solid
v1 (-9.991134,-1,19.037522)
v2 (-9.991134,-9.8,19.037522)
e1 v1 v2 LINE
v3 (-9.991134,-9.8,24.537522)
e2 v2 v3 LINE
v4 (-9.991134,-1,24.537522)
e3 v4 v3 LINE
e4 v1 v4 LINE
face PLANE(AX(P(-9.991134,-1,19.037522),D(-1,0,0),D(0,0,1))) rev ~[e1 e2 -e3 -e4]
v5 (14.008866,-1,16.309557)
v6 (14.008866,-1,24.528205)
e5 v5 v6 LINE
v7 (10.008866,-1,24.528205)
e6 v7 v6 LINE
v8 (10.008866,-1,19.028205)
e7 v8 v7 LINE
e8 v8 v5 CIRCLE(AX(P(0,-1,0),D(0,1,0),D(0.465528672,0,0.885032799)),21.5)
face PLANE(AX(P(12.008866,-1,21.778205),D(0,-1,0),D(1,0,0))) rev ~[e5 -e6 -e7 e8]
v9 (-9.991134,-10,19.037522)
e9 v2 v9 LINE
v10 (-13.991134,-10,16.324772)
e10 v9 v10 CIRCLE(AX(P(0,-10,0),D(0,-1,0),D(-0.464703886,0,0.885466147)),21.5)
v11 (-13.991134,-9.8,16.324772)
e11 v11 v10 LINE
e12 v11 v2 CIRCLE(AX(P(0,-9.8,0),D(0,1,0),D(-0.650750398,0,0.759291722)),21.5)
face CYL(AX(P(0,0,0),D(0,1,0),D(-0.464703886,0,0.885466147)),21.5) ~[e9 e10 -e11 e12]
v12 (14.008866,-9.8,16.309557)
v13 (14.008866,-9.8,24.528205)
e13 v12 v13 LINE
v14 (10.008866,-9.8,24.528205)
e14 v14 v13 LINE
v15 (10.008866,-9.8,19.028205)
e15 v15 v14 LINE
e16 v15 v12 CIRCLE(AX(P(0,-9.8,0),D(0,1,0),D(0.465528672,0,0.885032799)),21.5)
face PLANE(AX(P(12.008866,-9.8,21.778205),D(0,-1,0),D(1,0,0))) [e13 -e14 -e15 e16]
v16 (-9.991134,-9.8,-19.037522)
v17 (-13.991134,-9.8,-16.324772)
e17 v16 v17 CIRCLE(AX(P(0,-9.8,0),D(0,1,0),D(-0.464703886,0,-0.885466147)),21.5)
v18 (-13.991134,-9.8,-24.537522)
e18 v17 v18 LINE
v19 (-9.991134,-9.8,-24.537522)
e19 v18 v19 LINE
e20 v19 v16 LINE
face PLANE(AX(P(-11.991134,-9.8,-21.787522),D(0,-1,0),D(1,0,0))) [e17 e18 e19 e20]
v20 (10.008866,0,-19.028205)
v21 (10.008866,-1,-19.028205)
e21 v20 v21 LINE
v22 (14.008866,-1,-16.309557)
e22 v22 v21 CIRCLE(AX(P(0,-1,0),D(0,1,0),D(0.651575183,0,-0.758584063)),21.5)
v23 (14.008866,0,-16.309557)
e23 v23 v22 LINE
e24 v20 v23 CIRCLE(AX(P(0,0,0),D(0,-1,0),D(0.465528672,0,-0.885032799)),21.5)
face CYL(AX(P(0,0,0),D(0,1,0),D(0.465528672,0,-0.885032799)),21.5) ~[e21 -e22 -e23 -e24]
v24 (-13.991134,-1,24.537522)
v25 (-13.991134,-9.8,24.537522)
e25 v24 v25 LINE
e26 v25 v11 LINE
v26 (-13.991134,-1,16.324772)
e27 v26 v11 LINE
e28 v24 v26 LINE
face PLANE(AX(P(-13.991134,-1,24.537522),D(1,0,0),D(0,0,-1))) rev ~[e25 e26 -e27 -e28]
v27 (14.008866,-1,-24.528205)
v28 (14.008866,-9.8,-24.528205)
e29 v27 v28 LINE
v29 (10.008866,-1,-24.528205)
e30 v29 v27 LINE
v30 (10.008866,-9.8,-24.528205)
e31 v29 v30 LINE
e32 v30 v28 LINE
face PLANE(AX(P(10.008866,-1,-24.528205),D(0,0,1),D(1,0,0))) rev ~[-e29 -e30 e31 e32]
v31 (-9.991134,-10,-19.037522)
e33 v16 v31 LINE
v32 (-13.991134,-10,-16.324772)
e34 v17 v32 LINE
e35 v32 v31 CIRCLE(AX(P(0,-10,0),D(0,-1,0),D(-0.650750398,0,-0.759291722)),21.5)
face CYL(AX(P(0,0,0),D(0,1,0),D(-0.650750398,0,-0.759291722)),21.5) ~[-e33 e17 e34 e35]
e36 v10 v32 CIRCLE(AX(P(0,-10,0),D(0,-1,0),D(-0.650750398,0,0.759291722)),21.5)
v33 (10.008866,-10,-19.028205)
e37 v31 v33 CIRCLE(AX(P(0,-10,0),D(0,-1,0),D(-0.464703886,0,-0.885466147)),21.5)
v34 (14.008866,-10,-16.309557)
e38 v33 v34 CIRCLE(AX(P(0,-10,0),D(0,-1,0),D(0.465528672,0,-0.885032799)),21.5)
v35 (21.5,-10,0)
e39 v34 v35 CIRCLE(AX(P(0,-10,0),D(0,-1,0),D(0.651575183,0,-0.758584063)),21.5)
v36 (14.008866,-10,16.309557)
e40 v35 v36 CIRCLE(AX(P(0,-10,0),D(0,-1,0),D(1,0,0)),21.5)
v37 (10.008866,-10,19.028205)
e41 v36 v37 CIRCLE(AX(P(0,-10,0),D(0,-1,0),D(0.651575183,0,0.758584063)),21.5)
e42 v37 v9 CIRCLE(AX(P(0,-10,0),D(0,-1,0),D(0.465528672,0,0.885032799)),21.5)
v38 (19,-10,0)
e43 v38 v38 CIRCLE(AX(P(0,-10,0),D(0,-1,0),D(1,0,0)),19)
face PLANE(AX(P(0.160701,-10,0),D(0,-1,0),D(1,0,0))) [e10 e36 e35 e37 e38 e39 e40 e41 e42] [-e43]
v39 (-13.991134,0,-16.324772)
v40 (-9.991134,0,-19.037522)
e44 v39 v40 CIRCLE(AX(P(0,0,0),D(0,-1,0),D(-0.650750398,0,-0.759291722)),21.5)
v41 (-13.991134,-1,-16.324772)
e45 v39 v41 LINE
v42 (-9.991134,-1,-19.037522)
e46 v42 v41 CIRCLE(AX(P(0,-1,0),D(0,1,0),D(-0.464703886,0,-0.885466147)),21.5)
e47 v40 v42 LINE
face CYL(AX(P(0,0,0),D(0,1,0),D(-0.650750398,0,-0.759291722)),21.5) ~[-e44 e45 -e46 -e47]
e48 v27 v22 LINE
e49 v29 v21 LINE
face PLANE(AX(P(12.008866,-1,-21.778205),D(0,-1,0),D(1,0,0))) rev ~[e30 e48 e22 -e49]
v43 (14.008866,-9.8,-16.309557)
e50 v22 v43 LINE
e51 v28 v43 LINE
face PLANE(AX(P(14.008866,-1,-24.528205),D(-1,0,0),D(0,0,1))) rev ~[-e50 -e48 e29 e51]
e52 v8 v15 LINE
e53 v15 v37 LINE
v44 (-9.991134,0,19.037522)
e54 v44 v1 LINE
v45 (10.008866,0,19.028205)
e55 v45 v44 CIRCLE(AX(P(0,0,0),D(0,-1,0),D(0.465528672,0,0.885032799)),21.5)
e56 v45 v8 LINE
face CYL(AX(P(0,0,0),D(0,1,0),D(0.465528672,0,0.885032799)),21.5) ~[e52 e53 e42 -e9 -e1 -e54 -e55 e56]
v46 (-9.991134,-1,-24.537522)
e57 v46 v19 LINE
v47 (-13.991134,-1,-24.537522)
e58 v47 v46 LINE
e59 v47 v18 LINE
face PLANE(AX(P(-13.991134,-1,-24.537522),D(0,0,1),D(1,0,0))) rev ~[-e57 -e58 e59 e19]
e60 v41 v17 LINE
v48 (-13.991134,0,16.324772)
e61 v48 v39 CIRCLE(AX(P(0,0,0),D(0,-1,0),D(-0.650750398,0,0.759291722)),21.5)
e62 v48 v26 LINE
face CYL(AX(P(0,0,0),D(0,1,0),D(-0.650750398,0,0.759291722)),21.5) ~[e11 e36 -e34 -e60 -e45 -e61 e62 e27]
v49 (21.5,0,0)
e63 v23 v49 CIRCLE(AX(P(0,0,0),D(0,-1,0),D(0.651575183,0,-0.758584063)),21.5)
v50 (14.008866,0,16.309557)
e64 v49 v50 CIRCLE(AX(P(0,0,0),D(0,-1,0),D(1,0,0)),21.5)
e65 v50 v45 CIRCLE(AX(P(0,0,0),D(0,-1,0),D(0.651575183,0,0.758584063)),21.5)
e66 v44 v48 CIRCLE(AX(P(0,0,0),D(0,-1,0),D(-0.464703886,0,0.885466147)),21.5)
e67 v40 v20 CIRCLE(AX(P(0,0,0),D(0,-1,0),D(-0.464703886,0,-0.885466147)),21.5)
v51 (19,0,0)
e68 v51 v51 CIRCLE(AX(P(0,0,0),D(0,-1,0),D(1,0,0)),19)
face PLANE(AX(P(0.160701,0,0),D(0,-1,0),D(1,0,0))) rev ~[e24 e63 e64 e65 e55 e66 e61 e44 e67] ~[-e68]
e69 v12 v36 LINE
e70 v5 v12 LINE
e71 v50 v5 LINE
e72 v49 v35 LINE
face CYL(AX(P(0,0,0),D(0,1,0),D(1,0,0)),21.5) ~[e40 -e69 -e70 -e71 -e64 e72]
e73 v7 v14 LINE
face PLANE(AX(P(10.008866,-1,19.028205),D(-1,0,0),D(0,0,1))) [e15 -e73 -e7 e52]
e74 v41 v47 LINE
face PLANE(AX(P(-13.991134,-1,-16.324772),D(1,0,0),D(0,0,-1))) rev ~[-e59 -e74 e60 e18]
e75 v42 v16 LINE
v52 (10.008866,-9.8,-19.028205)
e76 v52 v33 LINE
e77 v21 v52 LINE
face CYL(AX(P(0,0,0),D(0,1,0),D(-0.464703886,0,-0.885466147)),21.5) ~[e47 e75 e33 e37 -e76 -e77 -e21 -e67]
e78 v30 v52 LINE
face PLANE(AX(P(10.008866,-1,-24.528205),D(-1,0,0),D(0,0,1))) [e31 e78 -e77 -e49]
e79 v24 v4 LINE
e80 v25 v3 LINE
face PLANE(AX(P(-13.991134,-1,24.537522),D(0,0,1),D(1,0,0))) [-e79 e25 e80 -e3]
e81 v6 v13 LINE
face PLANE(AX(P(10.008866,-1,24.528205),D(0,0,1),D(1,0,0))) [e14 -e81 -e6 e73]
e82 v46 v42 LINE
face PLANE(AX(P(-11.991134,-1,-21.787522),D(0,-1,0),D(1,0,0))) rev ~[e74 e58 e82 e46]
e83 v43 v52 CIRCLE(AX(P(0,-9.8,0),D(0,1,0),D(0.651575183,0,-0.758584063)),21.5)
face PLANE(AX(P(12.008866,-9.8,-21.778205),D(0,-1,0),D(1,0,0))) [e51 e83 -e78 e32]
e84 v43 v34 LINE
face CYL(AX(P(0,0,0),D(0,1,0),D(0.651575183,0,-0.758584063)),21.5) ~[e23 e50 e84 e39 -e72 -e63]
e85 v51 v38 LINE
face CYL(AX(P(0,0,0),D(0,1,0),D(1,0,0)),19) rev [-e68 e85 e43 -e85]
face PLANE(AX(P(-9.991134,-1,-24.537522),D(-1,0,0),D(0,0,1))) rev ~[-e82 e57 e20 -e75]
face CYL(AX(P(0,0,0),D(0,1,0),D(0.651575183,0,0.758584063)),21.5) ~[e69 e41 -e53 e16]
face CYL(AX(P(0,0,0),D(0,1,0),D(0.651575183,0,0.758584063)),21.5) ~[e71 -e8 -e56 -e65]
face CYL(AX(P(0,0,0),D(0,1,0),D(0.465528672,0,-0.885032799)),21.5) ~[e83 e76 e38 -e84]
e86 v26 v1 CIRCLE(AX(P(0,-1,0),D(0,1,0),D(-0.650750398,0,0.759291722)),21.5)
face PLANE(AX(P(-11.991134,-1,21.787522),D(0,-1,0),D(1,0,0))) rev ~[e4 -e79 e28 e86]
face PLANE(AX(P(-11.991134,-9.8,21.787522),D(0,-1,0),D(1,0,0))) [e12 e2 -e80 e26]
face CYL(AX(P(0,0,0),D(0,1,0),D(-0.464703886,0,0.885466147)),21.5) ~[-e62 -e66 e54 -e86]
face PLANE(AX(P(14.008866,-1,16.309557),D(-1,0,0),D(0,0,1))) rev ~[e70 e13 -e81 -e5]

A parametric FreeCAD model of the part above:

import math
import FreeCAD as App
import Part
import Sketcher
from FreeCAD import Vector
Q = App.Units.Quantity

doc = App.newDocument("Part")
body = doc.addObject("PartDesign::Body", "Body")

sketch1 = doc.addObject("Sketcher::SketchObject", "Sketch")
body.addObject(sketch1)
sketch1.AttachmentSupport = (doc.XZ_Plane, [""])
sketch1.MapMode = "FlatFace"
sketch1.addGeometry([
    Part.ArcOfCircle(Part.Circle(Vector(0, 0, 0), Vector(0, 0, 1), 21.5), math.radians(-49), math.radians(0)),
    Part.ArcOfCircle(Part.Circle(Vector(0, 0, 0), Vector(0, 0, 1), 21.5), math.radians(0), math.radians(49)),
    Part.ArcOfCircle(Part.Circle(Vector(0, 0, 0), Vector(0, 0, 1), 21.5), math.radians(49.34), math.radians(62.26)),
    Part.ArcOfCircle(Part.Circle(Vector(0, 0, 0), Vector(0, 0, 1), 21.5), math.radians(62), math.radians(118)),
    Part.ArcOfCircle(Part.Circle(Vector(0, 0, 0), Vector(0, 0, 1), 21.5), math.radians(117.69), math.radians(130.6)),
    Part.ArcOfCircle(Part.Circle(Vector(0, 0, 0), Vector(0, 0, 1), 21.5), math.radians(131), math.radians(229)),
    Part.ArcOfCircle(Part.Circle(Vector(0, 0, 0), Vector(0, 0, 1), 21.5), math.radians(-130.6), math.radians(-117.69)),
    Part.ArcOfCircle(Part.Circle(Vector(0, 0, 0), Vector(0, 0, 1), 21.5), math.radians(-118), math.radians(-62)),
    Part.ArcOfCircle(Part.Circle(Vector(0, 0, 0), Vector(0, 0, 1), 21.5), math.radians(-62.26), math.radians(-49.34)),
    Part.Circle(Vector(0, 0, 0), Vector(0, 0, 1), 19),
], False)
sketch1.addConstraint([
    Sketcher.Constraint("Tangent", 0, 2, 1, 1),
    Sketcher.Constraint("Tangent", 1, 2, 2, 1),
    Sketcher.Constraint("Tangent", 2, 2, 3, 1),
    Sketcher.Constraint("Tangent", 3, 2, 4, 1),
    Sketcher.Constraint("Tangent", 4, 2, 5, 1),
    Sketcher.Constraint("Tangent", 5, 2, 6, 1),
    Sketcher.Constraint("Tangent", 6, 2, 7, 1),
    Sketcher.Constraint("Tangent", 7, 2, 8, 1),
    Sketcher.Constraint("Tangent", 8, 2, 0, 1),
    Sketcher.Constraint("Coincident", 0, 3, -1, 1),
    Sketcher.Constraint("Coincident", 2, 3, -1, 1),
    Sketcher.Constraint("Coincident", 4, 3, -1, 1),
    Sketcher.Constraint("Coincident", 6, 3, -1, 1),
    Sketcher.Constraint("Coincident", 9, 3, -1, 1),
    Sketcher.Constraint("PointOnObject", 0, 2, -1),
    Sketcher.Constraint("Vertical", 4, 2, 5, 2),
    Sketcher.Constraint("Vertical", 3, 2, 6, 2),
    Sketcher.Constraint("Vertical", 2, 2, 7, 2),
    Sketcher.Constraint("Vertical", 1, 2, 8, 2),
    Sketcher.Constraint("Diameter", 9, Q("38 mm")),
    Sketcher.Constraint("Radius", 0, Q("21.5 mm")),
    Sketcher.Constraint("DistanceX", 2, 2, 1, 2, Q("4 mm")),
    Sketcher.Constraint("DistanceX", 3, 2, 2, 2, Q("20 mm")),
    Sketcher.Constraint("DistanceX", 4, 2, 3, 2, Q("4 mm")),
    Sketcher.Constraint("DistanceY", 4, 2, 3, 2, Q("2.71275 mm")),
])
pad1 = doc.addObject("PartDesign::Pad", "Pad")
body.addObject(pad1)
pad1.Profile = sketch1
pad1.Length = 10

sketch2 = doc.addObject("Sketcher::SketchObject", "Sketch001")
body.addObject(sketch2)
sketch2.AttachmentSupport = (doc.XZ_Plane, [""])
sketch2.MapMode = "FlatFace"
sketch2.AttachmentOffset = App.Placement(Vector(0, 0, 1), App.Rotation())
sketch2.addGeometry([
    Part.LineSegment(Vector(10, 24.5, 0), Vector(10, 19, 0)),
    Part.ArcOfCircle(Part.Circle(Vector(0, 0, 0), Vector(0, 0, 1), 21.5), math.radians(49.34), math.radians(62.26)),
    Part.LineSegment(Vector(14, 16.3, 0), Vector(14, 24.5, 0)),
    Part.LineSegment(Vector(14, 24.5, 0), Vector(10, 24.5, 0)),
    Part.LineSegment(Vector(-14, 24.5, 0), Vector(-14, 16.3, 0)),
    Part.ArcOfCircle(Part.Circle(Vector(0, 0, 0), Vector(0, 0, 1), 21.5), math.radians(117.69), math.radians(130.6)),
    Part.LineSegment(Vector(-10, 19, 0), Vector(-10, 24.5, 0)),
    Part.LineSegment(Vector(-10, 24.5, 0), Vector(-14, 24.5, 0)),
    Part.LineSegment(Vector(10, -19, 0), Vector(10, -24.5, 0)),
    Part.LineSegment(Vector(10, -24.5, 0), Vector(14, -24.5, 0)),
    Part.LineSegment(Vector(14, -24.5, 0), Vector(14, -16.3, 0)),
    Part.ArcOfCircle(Part.Circle(Vector(0, 0, 0), Vector(0, 0, 1), 21.5), math.radians(-62.26), math.radians(-49.34)),
    Part.LineSegment(Vector(-14, -24.5, 0), Vector(-10, -24.5, 0)),
    Part.LineSegment(Vector(-10, -24.5, 0), Vector(-10, -19, 0)),
    Part.ArcOfCircle(Part.Circle(Vector(0, 0, 0), Vector(0, 0, 1), 21.5), math.radians(-130.6), math.radians(-117.69)),
    Part.LineSegment(Vector(-14, -16.3, 0), Vector(-14, -24.5, 0)),
], False)
sketch2.addConstraint([
    Sketcher.Constraint("Coincident", 0, 2, 1, 2),
    Sketcher.Constraint("Coincident", 1, 1, 2, 1),
    Sketcher.Constraint("Coincident", 2, 2, 3, 1),
    Sketcher.Constraint("Coincident", 3, 2, 0, 1),
    Sketcher.Constraint("Coincident", 4, 2, 5, 2),
    Sketcher.Constraint("Coincident", 5, 1, 6, 1),
    Sketcher.Constraint("Coincident", 6, 2, 7, 1),
    Sketcher.Constraint("Coincident", 7, 2, 4, 1),
    Sketcher.Constraint("Coincident", 8, 2, 9, 1),
    Sketcher.Constraint("Coincident", 9, 2, 10, 1),
    Sketcher.Constraint("Coincident", 10, 2, 11, 2),
    Sketcher.Constraint("Coincident", 11, 1, 8, 1),
    Sketcher.Constraint("Coincident", 12, 2, 13, 1),
    Sketcher.Constraint("Coincident", 13, 2, 14, 2),
    Sketcher.Constraint("Coincident", 14, 1, 15, 1),
    Sketcher.Constraint("Coincident", 15, 2, 12, 1),
    Sketcher.Constraint("Vertical", 0),
    Sketcher.Constraint("Vertical", 2),
    Sketcher.Constraint("Horizontal", 3),
    Sketcher.Constraint("Vertical", 4),
    Sketcher.Constraint("Vertical", 6),
    Sketcher.Constraint("Horizontal", 7),
    Sketcher.Constraint("Vertical", 8),
    Sketcher.Constraint("Horizontal", 9),
    Sketcher.Constraint("Vertical", 10),
    Sketcher.Constraint("Horizontal", 12),
    Sketcher.Constraint("Vertical", 13),
    Sketcher.Constraint("Vertical", 15),
    Sketcher.Constraint("Coincident", 1, 3, -1, 1),
    Sketcher.Constraint("Coincident", 5, 3, -1, 1),
    Sketcher.Constraint("Coincident", 11, 3, -1, 1),
    Sketcher.Constraint("Coincident", 14, 3, -1, 1),
    Sketcher.Constraint("Equal", 1, 5),
    Sketcher.Constraint("Equal", 5, 11),
    Sketcher.Constraint("Equal", 11, 14),
    Sketcher.Constraint("Symmetric", 3, 2, 8, 2, -1),
    Sketcher.Constraint("Symmetric", 6, 2, 12, 2, -1),
    Sketcher.Constraint("Vertical", 2, 2, 9, 2),
    Sketcher.Constraint("Vertical", 7, 2, 14, 1),
    Sketcher.Constraint("Equal", 3, 7),
    Sketcher.Constraint("Equal", 0, 6),
    Sketcher.Constraint("Radius", 1, Q("21.5 mm")),
    Sketcher.Constraint("DistanceX", 3, 2, 3, 1, Q("4 mm")),
    Sketcher.Constraint("DistanceY", 0, 2, 0, 1, Q("5.5 mm")),
    Sketcher.Constraint("DistanceX", 4, 2, 0, 2, Q("24 mm")),
    Sketcher.Constraint("DistanceY", 4, 2, 4, 1, Q("8.21275 mm")),
])
pad2 = doc.addObject("PartDesign::Pad", "Pad001")
body.addObject(pad2)
pad2.Profile = sketch2
pad2.Length = 8.8

doc.recompute()
